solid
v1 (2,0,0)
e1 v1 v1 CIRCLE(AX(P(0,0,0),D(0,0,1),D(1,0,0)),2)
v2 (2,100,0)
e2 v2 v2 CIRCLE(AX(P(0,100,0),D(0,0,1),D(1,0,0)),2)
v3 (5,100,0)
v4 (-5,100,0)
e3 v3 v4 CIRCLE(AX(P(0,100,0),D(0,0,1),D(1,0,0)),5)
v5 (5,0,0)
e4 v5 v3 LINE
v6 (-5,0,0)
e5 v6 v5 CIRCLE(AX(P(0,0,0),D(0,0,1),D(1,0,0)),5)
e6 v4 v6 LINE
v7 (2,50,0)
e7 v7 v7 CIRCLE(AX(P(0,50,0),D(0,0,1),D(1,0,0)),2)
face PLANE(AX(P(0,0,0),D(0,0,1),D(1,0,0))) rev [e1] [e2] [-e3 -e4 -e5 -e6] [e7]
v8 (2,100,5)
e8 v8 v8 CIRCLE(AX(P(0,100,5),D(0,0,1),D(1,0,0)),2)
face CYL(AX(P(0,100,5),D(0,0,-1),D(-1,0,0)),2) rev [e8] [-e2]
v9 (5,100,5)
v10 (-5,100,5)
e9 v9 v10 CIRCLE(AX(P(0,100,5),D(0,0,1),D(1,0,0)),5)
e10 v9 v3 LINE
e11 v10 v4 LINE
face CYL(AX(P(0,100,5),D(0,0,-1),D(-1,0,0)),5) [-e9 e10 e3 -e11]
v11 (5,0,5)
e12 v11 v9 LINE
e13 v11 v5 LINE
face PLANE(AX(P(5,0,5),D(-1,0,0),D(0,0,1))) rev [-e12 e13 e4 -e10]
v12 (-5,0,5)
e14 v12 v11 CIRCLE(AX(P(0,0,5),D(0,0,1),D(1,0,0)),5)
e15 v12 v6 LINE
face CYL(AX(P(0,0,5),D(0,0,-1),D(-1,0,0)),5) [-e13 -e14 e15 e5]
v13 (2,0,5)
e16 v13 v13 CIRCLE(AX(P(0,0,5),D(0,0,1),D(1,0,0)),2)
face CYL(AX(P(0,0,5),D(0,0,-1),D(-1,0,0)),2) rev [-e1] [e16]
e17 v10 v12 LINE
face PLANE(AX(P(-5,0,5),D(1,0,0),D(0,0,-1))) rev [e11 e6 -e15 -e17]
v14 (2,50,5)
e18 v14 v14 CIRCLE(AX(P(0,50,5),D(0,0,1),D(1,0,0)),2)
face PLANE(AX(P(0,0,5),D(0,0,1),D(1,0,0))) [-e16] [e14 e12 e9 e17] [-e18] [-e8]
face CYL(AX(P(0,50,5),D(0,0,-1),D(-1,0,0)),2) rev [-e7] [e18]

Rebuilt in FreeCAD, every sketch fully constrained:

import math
import FreeCAD as App
import Part
import Sketcher
Q = App.Units.Quantity

doc = App.newDocument("Part")
body = doc.addObject("PartDesign::Body", "Body")

sketch1 = body.newObject("Sketcher::SketchObject", "Sketch")
sketch1.AttachmentSupport = (doc.getObject("XY_Plane"), [""])
sketch1.MapMode = "FlatFace"
sketch1.addGeometry(Part.LineSegment(App.Vector(-5, 100, 0), App.Vector(-5, 0, 0)), False)
sketch1.addGeometry(Part.ArcOfCircle(Part.Circle(App.Vector(0, 0, 0), App.Vector(0, 0, 1), 5), math.radians(180), math.radians(360)), False)
sketch1.addGeometry(Part.LineSegment(App.Vector(5, 0, 0), App.Vector(5, 100, 0)), False)
sketch1.addGeometry(Part.ArcOfCircle(Part.Circle(App.Vector(0, 100, 0), App.Vector(0, 0, 1), 5), math.radians(0), math.radians(180)), False)
sketch1.addGeometry(Part.Circle(App.Vector(0, 0, 0), App.Vector(0, 0, 1), 2), False)
sketch1.addGeometry(Part.Circle(App.Vector(0, 50, 0), App.Vector(0, 0, 1), 2), False)
sketch1.addGeometry(Part.Circle(App.Vector(0, 100, 0), App.Vector(0, 0, 1), 2), False)
sketch1.addConstraint(Sketcher.Constraint("Tangent", 0, 2, 1, 1))
sketch1.addConstraint(Sketcher.Constraint("Tangent", 1, 2, 2, 1))
sketch1.addConstraint(Sketcher.Constraint("Tangent", 2, 2, 3, 1))
sketch1.addConstraint(Sketcher.Constraint("Tangent", 3, 2, 0, 1))
sketch1.addConstraint(Sketcher.Constraint("Vertical", 0))
sketch1.addConstraint(Sketcher.Constraint("Vertical", 2))
sketch1.addConstraint(Sketcher.Constraint("Coincident", 1, 3, -1, 1))
sketch1.addConstraint(Sketcher.Constraint("Coincident", 4, 3, -1, 1))
sketch1.addConstraint(Sketcher.Constraint("Coincident", 6, 3, 3, 3))
sketch1.addConstraint(Sketcher.Constraint("Equal", 4, 5))
sketch1.addConstraint(Sketcher.Constraint("Equal", 5, 6))
sketch1.addConstraint(Sketcher.Constraint("PointOnObject", 5, 3, -2))
sketch1.addConstraint(Sketcher.Constraint("Diameter", 4, Q("4 mm")))
sketch1.addConstraint(Sketcher.Constraint("Radius", 1, Q("5 mm")))
sketch1.addConstraint(Sketcher.Constraint("DistanceY", 0, 2, 0, 1, Q("100 mm")))
sketch1.addConstraint(Sketcher.Constraint("DistanceY", -1, 1, 5, 3, Q("50 mm")))
pad1 = body.newObject("PartDesign::Pad", "Pad")
pad1.Profile = sketch1
pad1.Length = 5

doc.recompute()
